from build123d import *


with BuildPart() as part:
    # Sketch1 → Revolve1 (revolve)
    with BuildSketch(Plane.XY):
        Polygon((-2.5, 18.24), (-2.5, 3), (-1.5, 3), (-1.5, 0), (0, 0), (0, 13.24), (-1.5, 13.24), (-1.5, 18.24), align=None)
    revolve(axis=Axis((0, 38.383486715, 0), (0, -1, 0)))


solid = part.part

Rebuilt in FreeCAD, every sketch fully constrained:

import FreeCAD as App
import Part
import Sketcher
from FreeCAD import Vector
Q = App.Units.Quantity


def add_polygon(sketch, points):
    """Adds a closed chain of lines whose ends are joined by coincident constraints."""
    first, n = sketch.GeometryCount, len(points)
    for a, b in zip(points, points[1:] + points[:1]):
        sketch.addGeometry(Part.LineSegment(App.Vector(*a, 0), App.Vector(*b, 0)), False)
    for i in range(n):
        sketch.addConstraint(Sketcher.Constraint("Coincident", first + i, 2, first + (i + 1) % n, 1))

doc = App.newDocument("Part")
params = doc.addObject("Spreadsheet::Sheet", "Params")
for row, (alias, value) in enumerate([
    ("sketch1_width", "1 mm"),
    ("sketch1_height", "3 mm"),
    ("sketch1_height2", "5 mm"),
    ("sketch1_width2", "1.5 mm"),
    ("sketch1_height3", "15.24 mm"),
    ("revolution_angle", "360 deg"),
], start=1):
    params.set(f"A{row}", alias)
    params.set(f"B{row}", "=" + value)
    params.setAlias(f"B{row}", alias)

body = doc.addObject("PartDesign::Body", "Body")

# Sketch on XY plane
sketch1 = body.newObject("Sketcher::SketchObject", "Sketch")
sketch1.AttachmentSupport = (doc.getObject("XY_Plane"), [""])
sketch1.MapMode = "FlatFace"
add_polygon(sketch1, [(-2.5, 18.2), (-2.5, 3), (-1.5, 3), (-1.5, 0), (0, 0), (0, 13.2), (-1.5, 13.2), (-1.5, 18.2)])  # lines 0-7
sketch1.addConstraint(Sketcher.Constraint("Vertical", 0))
sketch1.addConstraint(Sketcher.Constraint("Horizontal", 1))
sketch1.addConstraint(Sketcher.Constraint("Vertical", 2))
sketch1.addConstraint(Sketcher.Constraint("Horizontal", 3))
sketch1.addConstraint(Sketcher.Constraint("Vertical", 4))
sketch1.addConstraint(Sketcher.Constraint("Horizontal", 5))
sketch1.addConstraint(Sketcher.Constraint("Vertical", 6))
sketch1.addConstraint(Sketcher.Constraint("Horizontal", 7))
sketch1.addConstraint(Sketcher.Constraint("Coincident", 3, 2, -1, 1))
sketch1.addConstraint(Sketcher.Constraint("Vertical", 2, 2, 5, 2))
sketch1.addConstraint(Sketcher.Constraint("DistanceX", 1, 1, 1, 2, Q("1 mm")))
sketch1.addConstraint(Sketcher.Constraint("DistanceY", 2, 2, 2, 1, Q("3 mm")))
sketch1.addConstraint(Sketcher.Constraint("DistanceY", 6, 1, 6, 2, Q("5 mm")))
sketch1.addConstraint(Sketcher.Constraint("DistanceX", 3, 1, 3, 2, Q("1.5 mm")))
sketch1.addConstraint(Sketcher.Constraint("DistanceY", 0, 2, 0, 1, Q("15.24 mm")))
sketch1.setExpression("Constraints[18]", "Params.sketch1_width")
sketch1.setExpression("Constraints[19]", "Params.sketch1_height")
sketch1.setExpression("Constraints[20]", "Params.sketch1_height2")
sketch1.setExpression("Constraints[21]", "Params.sketch1_width2")
sketch1.setExpression("Constraints[22]", "Params.sketch1_height3")
revolution = body.newObject("PartDesign::Revolution", "Revolution")
revolution.Profile = sketch1
revolution.ReferenceAxis = (sketch1, ["V_Axis"])
revolution.setExpression("Angle", "Params.revolution_angle")

doc.recompute()
